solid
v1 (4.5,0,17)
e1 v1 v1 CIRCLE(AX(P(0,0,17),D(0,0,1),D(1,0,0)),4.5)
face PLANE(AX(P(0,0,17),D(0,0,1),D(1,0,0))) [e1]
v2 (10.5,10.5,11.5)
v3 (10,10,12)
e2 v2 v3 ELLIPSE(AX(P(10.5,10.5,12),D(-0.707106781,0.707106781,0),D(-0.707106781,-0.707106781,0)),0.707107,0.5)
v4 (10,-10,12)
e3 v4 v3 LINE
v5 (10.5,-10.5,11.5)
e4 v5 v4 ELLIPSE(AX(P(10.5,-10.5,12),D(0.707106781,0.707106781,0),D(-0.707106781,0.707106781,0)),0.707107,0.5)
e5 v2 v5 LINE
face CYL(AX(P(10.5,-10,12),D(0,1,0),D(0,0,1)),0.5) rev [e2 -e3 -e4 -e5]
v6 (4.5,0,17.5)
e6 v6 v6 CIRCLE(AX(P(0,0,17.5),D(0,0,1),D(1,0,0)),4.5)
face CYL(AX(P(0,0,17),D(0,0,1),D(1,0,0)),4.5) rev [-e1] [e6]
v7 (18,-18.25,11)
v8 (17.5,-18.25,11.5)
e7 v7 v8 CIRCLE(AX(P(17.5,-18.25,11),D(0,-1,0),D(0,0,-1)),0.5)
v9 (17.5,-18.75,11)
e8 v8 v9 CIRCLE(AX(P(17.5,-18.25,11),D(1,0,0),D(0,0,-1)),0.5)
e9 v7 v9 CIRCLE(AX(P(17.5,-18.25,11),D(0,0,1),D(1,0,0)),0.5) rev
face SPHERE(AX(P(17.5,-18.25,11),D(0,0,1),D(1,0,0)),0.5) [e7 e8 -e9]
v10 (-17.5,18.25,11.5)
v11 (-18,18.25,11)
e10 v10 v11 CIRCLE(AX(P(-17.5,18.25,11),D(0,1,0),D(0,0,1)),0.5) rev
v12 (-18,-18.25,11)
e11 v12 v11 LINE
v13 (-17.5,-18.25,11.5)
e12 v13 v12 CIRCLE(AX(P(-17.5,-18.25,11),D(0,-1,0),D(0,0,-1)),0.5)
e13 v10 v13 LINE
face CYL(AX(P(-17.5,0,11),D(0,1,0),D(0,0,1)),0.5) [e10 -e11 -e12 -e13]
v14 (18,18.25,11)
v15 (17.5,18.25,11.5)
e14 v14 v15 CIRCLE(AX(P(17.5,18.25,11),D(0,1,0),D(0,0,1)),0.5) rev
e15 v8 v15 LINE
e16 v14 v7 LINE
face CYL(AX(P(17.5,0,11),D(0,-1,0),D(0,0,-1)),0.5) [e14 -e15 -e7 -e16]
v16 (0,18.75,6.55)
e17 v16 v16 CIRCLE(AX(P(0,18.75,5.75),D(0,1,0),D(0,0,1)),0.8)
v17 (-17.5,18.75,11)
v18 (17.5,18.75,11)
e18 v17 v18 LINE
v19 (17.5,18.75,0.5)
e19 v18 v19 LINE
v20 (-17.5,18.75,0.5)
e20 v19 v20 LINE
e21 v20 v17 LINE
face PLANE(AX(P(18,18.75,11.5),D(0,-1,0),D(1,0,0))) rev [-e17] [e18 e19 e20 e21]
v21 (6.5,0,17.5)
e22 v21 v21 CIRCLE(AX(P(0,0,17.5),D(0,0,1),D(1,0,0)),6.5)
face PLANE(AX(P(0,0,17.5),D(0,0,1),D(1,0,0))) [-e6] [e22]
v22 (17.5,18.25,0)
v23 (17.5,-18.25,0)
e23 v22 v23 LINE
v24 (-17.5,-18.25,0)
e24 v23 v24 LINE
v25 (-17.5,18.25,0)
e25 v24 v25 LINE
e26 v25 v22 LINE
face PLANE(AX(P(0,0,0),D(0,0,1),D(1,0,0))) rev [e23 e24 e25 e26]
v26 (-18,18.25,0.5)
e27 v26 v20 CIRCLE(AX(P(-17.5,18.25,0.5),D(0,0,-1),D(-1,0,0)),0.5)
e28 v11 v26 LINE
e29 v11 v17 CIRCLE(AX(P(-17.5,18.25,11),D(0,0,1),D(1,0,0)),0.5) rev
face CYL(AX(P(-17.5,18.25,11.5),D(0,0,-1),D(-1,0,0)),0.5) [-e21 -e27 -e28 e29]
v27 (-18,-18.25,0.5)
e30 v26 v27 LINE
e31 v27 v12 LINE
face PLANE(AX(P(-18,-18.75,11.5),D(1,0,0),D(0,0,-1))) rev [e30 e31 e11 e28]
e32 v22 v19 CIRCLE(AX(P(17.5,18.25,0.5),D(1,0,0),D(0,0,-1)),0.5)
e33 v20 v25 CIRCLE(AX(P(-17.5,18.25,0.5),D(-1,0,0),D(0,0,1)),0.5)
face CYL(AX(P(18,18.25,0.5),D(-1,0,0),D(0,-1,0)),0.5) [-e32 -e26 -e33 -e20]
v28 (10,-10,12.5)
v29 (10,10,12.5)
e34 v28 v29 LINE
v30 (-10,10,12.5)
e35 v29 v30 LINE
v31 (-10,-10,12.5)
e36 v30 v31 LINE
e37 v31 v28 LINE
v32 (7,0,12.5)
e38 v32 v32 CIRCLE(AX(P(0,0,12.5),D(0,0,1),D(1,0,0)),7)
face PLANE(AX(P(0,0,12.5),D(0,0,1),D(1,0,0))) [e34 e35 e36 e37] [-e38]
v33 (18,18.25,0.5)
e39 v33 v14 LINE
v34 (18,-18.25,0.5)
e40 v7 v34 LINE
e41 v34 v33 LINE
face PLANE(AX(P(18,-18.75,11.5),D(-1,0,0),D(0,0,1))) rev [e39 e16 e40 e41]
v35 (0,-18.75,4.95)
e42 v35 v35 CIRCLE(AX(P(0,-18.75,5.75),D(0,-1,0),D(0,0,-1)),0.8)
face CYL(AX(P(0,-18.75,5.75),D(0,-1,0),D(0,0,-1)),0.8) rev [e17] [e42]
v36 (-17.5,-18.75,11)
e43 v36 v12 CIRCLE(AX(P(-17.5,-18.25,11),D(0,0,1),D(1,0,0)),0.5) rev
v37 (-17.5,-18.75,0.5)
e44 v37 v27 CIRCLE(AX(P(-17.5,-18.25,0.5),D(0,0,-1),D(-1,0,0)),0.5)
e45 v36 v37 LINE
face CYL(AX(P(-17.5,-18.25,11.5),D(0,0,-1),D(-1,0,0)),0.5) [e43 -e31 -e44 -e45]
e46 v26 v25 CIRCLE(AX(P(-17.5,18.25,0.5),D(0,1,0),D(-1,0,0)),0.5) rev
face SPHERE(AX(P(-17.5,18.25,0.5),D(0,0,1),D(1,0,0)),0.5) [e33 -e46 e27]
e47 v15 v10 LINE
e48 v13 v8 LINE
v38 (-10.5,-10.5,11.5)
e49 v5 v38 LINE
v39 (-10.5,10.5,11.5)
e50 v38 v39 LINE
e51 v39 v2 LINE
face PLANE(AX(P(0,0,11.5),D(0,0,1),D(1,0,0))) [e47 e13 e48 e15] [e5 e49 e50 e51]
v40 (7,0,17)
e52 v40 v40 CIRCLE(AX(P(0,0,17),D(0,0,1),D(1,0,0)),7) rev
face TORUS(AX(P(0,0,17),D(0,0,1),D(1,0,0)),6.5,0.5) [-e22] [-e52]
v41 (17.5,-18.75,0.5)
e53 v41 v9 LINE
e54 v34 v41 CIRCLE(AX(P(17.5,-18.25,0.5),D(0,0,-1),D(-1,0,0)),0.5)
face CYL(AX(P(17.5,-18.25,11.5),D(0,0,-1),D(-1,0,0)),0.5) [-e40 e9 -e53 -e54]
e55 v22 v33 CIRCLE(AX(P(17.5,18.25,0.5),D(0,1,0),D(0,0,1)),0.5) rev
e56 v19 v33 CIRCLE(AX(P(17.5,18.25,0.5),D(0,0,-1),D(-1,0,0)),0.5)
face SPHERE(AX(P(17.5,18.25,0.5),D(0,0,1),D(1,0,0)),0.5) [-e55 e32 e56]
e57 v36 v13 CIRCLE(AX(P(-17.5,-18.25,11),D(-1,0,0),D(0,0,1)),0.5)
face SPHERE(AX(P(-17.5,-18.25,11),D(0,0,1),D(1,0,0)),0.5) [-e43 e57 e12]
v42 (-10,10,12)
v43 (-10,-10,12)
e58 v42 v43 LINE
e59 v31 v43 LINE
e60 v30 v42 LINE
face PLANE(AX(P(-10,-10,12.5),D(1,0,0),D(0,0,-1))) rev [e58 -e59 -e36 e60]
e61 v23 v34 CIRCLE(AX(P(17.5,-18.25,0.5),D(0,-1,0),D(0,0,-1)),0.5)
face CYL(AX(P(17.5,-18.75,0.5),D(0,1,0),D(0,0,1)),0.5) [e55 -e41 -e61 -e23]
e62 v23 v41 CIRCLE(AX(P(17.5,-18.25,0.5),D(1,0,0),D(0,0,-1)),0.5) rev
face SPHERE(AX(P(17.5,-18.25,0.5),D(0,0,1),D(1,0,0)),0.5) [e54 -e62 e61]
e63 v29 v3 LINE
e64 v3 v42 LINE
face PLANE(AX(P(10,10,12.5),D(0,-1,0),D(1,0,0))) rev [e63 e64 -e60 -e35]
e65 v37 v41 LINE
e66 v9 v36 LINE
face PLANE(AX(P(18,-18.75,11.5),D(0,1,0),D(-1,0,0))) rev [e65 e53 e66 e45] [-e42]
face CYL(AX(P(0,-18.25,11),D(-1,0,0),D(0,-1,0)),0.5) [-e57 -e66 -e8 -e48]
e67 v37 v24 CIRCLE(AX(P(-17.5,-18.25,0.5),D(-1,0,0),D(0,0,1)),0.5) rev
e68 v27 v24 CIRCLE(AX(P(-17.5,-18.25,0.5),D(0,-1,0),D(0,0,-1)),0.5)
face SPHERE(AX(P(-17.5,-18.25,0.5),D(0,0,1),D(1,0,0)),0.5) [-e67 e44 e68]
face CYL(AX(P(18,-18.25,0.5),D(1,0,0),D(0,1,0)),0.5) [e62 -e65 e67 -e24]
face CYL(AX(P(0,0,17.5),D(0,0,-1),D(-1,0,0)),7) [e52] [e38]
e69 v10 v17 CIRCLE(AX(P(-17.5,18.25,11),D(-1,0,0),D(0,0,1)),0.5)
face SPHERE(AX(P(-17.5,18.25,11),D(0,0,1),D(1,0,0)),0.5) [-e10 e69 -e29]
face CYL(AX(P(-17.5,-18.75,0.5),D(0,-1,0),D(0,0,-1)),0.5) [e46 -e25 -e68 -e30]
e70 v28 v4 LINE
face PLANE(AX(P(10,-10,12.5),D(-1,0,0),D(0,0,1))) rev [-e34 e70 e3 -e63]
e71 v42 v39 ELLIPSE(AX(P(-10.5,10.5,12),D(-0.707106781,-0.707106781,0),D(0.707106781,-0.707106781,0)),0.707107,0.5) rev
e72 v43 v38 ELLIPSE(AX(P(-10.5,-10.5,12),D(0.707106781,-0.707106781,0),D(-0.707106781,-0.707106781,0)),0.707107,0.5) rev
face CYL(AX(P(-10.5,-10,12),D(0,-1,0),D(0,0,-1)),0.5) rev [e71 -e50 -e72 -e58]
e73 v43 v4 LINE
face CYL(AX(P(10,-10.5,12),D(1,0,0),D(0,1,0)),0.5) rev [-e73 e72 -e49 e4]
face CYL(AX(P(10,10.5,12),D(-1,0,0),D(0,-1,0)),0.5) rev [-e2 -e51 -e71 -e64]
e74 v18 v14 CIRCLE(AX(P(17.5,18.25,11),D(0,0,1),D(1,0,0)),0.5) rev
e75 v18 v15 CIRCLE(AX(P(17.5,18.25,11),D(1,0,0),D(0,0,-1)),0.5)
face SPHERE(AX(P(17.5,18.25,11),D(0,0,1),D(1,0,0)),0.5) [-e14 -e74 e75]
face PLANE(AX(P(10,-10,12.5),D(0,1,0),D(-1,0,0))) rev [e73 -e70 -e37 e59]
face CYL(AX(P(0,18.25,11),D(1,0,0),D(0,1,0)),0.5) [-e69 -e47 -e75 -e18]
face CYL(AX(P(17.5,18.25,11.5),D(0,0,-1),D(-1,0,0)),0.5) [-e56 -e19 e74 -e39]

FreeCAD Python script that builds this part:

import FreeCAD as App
import Part
import Sketcher

V = App.Vector
Q = App.Units.Quantity


def edges_at(feature, points):
    """Names of the edges that pass closest to the given points."""
    edges = feature.Shape.Edges
    near = lambda p: min(range(len(edges)), key=lambda i: edges[i].distToShape(Part.Vertex(*p))[0])
    return sorted({f"Edge{near(p) + 1}" for p in points})

doc = App.newDocument("Part")
body = doc.addObject("PartDesign::Body", "Body")

# Sketch on XY plane
sketch1 = body.newObject("Sketcher::SketchObject", "Sketch")
sketch1.AttachmentSupport = (doc.getObject("XY_Plane"), [""])
sketch1.MapMode = "FlatFace"
sketch1.addGeometry(Part.LineSegment(V(-18, 18.75, 0), V(-18, -18.75, 0)), False)
sketch1.addGeometry(Part.LineSegment(V(-18, -18.75, 0), V(18, -18.75, 0)), False)
sketch1.addGeometry(Part.LineSegment(V(18, -18.75, 0), V(18, 18.75, 0)), False)
sketch1.addGeometry(Part.LineSegment(V(18, 18.75, 0), V(-18, 18.75, 0)), False)
sketch1.addConstraint(Sketcher.Constraint("Coincident", 0, 2, 1, 1))
sketch1.addConstraint(Sketcher.Constraint("Coincident", 1, 2, 2, 1))
sketch1.addConstraint(Sketcher.Constraint("Coincident", 2, 2, 3, 1))
sketch1.addConstraint(Sketcher.Constraint("Coincident", 3, 2, 0, 1))
sketch1.addConstraint(Sketcher.Constraint("Vertical", 0))
sketch1.addConstraint(Sketcher.Constraint("Horizontal", 1))
sketch1.addConstraint(Sketcher.Constraint("Vertical", 2))
sketch1.addConstraint(Sketcher.Constraint("Horizontal", 3))
sketch1.addConstraint(Sketcher.Constraint("Symmetric", 0, 2, 2, 2, -1, 1))
sketch1.addConstraint(Sketcher.Constraint("DistanceX", 1, 1, 1, 2, Q("36 mm")))
sketch1.addConstraint(Sketcher.Constraint("DistanceY", 0, 2, 0, 1, Q("37.5 mm")))
pad1 = body.newObject("PartDesign::Pad", "Pad")
pad1.Profile = sketch1
pad1.Length = 11.5

# Sketch on XY plane
sketch2 = body.newObject("Sketcher::SketchObject", "Sketch001")
sketch2.AttachmentSupport = (doc.getObject("XY_Plane"), [""])
sketch2.MapMode = "FlatFace"
sketch2.AttachmentOffset = App.Placement(V(0, 0, 11.5), App.Rotation())
sketch2.addGeometry(Part.LineSegment(V(-10, 10, 0), V(-10, -10, 0)), False)
sketch2.addGeometry(Part.LineSegment(V(-10, -10, 0), V(10, -10, 0)), False)
sketch2.addGeometry(Part.LineSegment(V(10, -10, 0), V(10, 10, 0)), False)
sketch2.addGeometry(Part.LineSegment(V(10, 10, 0), V(-10, 10, 0)), False)
sketch2.addConstraint(Sketcher.Constraint("Coincident", 0, 2, 1, 1))
sketch2.addConstraint(Sketcher.Constraint("Coincident", 1, 2, 2, 1))
sketch2.addConstraint(Sketcher.Constraint("Coincident", 2, 2, 3, 1))
sketch2.addConstraint(Sketcher.Constraint("Coincident", 3, 2, 0, 1))
sketch2.addConstraint(Sketcher.Constraint("Vertical", 0))
sketch2.addConstraint(Sketcher.Constraint("Horizontal", 1))
sketch2.addConstraint(Sketcher.Constraint("Vertical", 2))
sketch2.addConstraint(Sketcher.Constraint("Horizontal", 3))
sketch2.addConstraint(Sketcher.Constraint("Symmetric", 0, 2, 2, 2, -1, 1))
sketch2.addConstraint(Sketcher.Constraint("Equal", 3, 0))
sketch2.addConstraint(Sketcher.Constraint("DistanceX", 1, 1, 1, 2, Q("20 mm")))
pad2 = body.newObject("PartDesign::Pad", "Pad001")
pad2.Profile = sketch2
pad2.Length = 1

# Sketch on XY plane
sketch3 = body.newObject("Sketcher::SketchObject", "Sketch002")
sketch3.AttachmentSupport = (doc.getObject("XY_Plane"), [""])
sketch3.MapMode = "FlatFace"
sketch3.AttachmentOffset = App.Placement(V(0, 0, 12.5), App.Rotation())
sketch3.addGeometry(Part.Circle(V(0, 0, 0), V(0, 0, 1), 7), False)
sketch3.addConstraint(Sketcher.Constraint("Coincident", 0, 3, -1, 1))
sketch3.addConstraint(Sketcher.Constraint("Diameter", 0, Q("14 mm")))
pad3 = body.newObject("PartDesign::Pad", "Pad002")
pad3.Profile = sketch3
pad3.Length = 5
doc.recompute()

fillet = body.newObject("PartDesign::Fillet", "Fillet")
fillet.Base = (pad3, edges_at(pad3, [
    (18, 0, 11.5),
    (0, 18.75, 11.5),
    (-10, 0, 11.5),
    (0, -10, 11.5),
    (10, 0, 11.5),
    (0, 10, 11.5),
    (-7, 0, 17.5),
    (-18, 0, 11.5),
    (0, 18.75, 0),
    (18, 0, 0),
    (0, -18.75, 0),
    (-18, 0, 0),
    (0, -18.75, 11.5),
    (-18, 18.75, 5.75),
    (18, 18.75, 5.75),
    (18, -18.75, 5.75),
    (-18, -18.75, 5.75),
]))
fillet.Radius = 0.5

# Sketch on XY plane
sketch4 = body.newObject("Sketcher::SketchObject", "Sketch003")
sketch4.AttachmentSupport = (doc.getObject("XY_Plane"), [""])
sketch4.MapMode = "FlatFace"
sketch4.AttachmentOffset = App.Placement(V(0, 0, 17.5), App.Rotation())
sketch4.addGeometry(Part.Circle(V(0, 0, 0), V(0, 0, 1), 4.5), False)
sketch4.addConstraint(Sketcher.Constraint("Coincident", 0, 3, -1, 1))
sketch4.addConstraint(Sketcher.Constraint("Diameter", 0, Q("9 mm")))
pocket1 = body.newObject("PartDesign::Pocket", "Pocket")
pocket1.Profile = sketch4
pocket1.Length = 0.5

# Sketch on YZ plane
sketch5 = body.newObject("Sketcher::SketchObject", "Sketch004")
sketch5.AttachmentSupport = (doc.getObject("YZ_Plane"), [""])
sketch5.MapMode = "FlatFace"
sketch5.addGeometry(Part.LineSegment(V(1.730688, 5.75, 0), V(-18.75, 5.75, 0)), False)
sketch5.addGeometry(Part.LineSegment(V(-18.75, 5.75, 0), V(-18.75, 4.95, 0)), False)
sketch5.addGeometry(Part.LineSegment(V(-18.75, 4.95, 0), V(1.25, 4.95, 0)), False)
sketch5.addGeometry(Part.LineSegment(V(1.25, 4.95, 0), V(1.730688, 5.75, 0)), False)
sketch5.addGeometry(Part.LineSegment(V(-18.75, 5.75, 0), V(1.730688, 5.75, 0)), True)  # axis
sketch5.addConstraint(Sketcher.Constraint("Coincident", 0, 2, 1, 1))
sketch5.addConstraint(Sketcher.Constraint("Coincident", 1, 2, 2, 1))
sketch5.addConstraint(Sketcher.Constraint("Coincident", 2, 2, 3, 1))
sketch5.addConstraint(Sketcher.Constraint("Coincident", 3, 2, 0, 1))
sketch5.addConstraint(Sketcher.Constraint("Horizontal", 0))
sketch5.addConstraint(Sketcher.Constraint("Vertical", 1))
sketch5.addConstraint(Sketcher.Constraint("Horizontal", 2))
sketch5.addConstraint(Sketcher.Constraint("Horizontal", 4))
sketch5.addConstraint(Sketcher.Constraint("Coincident", 4, 1, 0, 2))
sketch5.addConstraint(Sketcher.Constraint("Equal", 0, 4))
sketch5.addConstraint(Sketcher.Constraint("DistanceX", 2, 1, 2, 2, Q("20 mm")))
sketch5.addConstraint(Sketcher.Constraint("Angle", 3, Q("59 deg")))
sketch5.addConstraint(Sketcher.Constraint("DistanceY", 1, 2, 1, 1, Q("0.8 mm")))
sketch5.addConstraint(Sketcher.Constraint("DistanceX", 0, 2, -1, 1, Q("18.75 mm")))
sketch5.addConstraint(Sketcher.Constraint("DistanceY", -1, 1, 0, 2, Q("5.75 mm")))
groove = body.newObject("PartDesign::Groove", "Groove")
groove.Profile = sketch5
groove.ReferenceAxis = (sketch5, ["Axis0"])
groove.Angle = 360
doc.recompute()

mirrored = body.newObject("PartDesign::Mirrored", "Mirrored")
mirrored.Originals = [groove]
mirrored.MirrorPlane = (doc.getObject("XZ_Plane"), [""])
body.Tip = mirrored

doc.recompute()
